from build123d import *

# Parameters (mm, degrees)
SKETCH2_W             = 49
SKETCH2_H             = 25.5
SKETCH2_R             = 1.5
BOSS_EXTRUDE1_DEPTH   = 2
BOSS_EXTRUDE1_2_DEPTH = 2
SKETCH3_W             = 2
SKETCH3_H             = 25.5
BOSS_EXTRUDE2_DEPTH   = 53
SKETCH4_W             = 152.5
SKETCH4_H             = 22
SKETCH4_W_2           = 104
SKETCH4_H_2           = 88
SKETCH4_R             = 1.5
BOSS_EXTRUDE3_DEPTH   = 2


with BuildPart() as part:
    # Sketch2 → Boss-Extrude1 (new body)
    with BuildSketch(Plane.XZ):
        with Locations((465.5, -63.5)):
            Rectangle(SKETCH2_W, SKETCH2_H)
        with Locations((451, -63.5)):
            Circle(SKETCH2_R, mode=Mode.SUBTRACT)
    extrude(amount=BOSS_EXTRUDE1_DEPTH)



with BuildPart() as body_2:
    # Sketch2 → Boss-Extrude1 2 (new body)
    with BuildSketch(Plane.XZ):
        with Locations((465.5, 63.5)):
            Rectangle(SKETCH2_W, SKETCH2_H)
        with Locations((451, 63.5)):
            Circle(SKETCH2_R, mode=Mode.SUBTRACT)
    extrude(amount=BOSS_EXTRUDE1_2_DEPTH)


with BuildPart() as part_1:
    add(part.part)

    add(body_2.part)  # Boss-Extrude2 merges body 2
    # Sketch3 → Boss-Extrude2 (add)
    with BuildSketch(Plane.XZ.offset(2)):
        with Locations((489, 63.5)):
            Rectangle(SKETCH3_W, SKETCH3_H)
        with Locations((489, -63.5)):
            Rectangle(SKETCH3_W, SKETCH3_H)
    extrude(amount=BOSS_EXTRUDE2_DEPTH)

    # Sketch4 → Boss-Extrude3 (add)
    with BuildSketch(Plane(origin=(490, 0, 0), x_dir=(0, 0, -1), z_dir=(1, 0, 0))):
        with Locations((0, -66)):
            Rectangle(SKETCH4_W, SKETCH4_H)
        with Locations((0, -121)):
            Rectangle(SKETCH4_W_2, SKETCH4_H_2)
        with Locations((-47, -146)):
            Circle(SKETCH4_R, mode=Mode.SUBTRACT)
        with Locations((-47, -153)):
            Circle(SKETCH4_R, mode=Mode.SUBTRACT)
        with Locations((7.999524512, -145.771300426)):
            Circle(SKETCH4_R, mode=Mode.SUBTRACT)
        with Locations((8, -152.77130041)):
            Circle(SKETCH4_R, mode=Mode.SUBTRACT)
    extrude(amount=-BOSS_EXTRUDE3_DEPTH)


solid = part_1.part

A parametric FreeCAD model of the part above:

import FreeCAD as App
import Part
import Sketcher

V = App.Vector
Q = App.Units.Quantity


def add_polygon(sketch, points):
    """Adds a closed chain of lines whose ends are joined by coincident constraints."""
    first, n = sketch.GeometryCount, len(points)
    for a, b in zip(points, points[1:] + points[:1]):
        sketch.addGeometry(Part.LineSegment(App.Vector(*a, 0), App.Vector(*b, 0)), False)
    for i in range(n):
        sketch.addConstraint(Sketcher.Constraint("Coincident", first + i, 2, first + (i + 1) % n, 1))

doc = App.newDocument("Part")
body = doc.addObject("PartDesign::Body", "Body")

sketch1 = doc.addObject("Sketcher::SketchObject", "Sketch")
body.addObject(sketch1)
sketch1.AttachmentSupport = (doc.XZ_Plane, [""])
sketch1.MapMode = "FlatFace"
add_polygon(sketch1, [(441, -50.75), (441, -76.25), (490, -76.25), (490, -50.75)])
sketch1.addGeometry(Part.Circle(V(451, -63.5, 0), V(0, 0, 1), 1.5), False)
sketch1.addConstraint(Sketcher.Constraint("Vertical", 0))
sketch1.addConstraint(Sketcher.Constraint("Horizontal", 1))
sketch1.addConstraint(Sketcher.Constraint("Vertical", 2))
sketch1.addConstraint(Sketcher.Constraint("Horizontal", 3))
sketch1.addConstraint(Sketcher.Constraint("Diameter", 4, Q("3 mm")))
sketch1.addConstraint(Sketcher.Constraint("DistanceX", 1, 1, 1, 2, Q("49 mm")))
sketch1.addConstraint(Sketcher.Constraint("DistanceY", 0, 2, 0, 1, Q("25.5 mm")))
sketch1.addConstraint(Sketcher.Constraint("DistanceX", -1, 1, 4, 3, Q("451 mm")))
sketch1.addConstraint(Sketcher.Constraint("DistanceX", -1, 1, 0, 2, Q("441 mm")))
sketch1.addConstraint(Sketcher.Constraint("DistanceY", 4, 3, -1, 1, Q("63.5 mm")))
sketch1.addConstraint(Sketcher.Constraint("DistanceY", 0, 2, -1, 1, Q("76.25 mm")))
pad1 = doc.addObject("PartDesign::Pad", "Pad")
body.addObject(pad1)
pad1.Profile = sketch1
pad1.Length = 2
body2 = doc.addObject("PartDesign::Body", "Body001")

sketch2 = doc.addObject("Sketcher::SketchObject", "Sketch001")
body2.addObject(sketch2)
sketch2.AttachmentSupport = (doc.getObject("XZ_Plane001"), [""])
sketch2.MapMode = "FlatFace"
add_polygon(sketch2, [(441, 76.25), (441, 50.75), (490, 50.75), (490, 76.25)])
sketch2.addGeometry(Part.Circle(V(451, 63.5, 0), V(0, 0, 1), 1.5), False)
sketch2.addConstraint(Sketcher.Constraint("Vertical", 0))
sketch2.addConstraint(Sketcher.Constraint("Horizontal", 1))
sketch2.addConstraint(Sketcher.Constraint("Vertical", 2))
sketch2.addConstraint(Sketcher.Constraint("Horizontal", 3))
sketch2.addConstraint(Sketcher.Constraint("Diameter", 4, Q("3 mm")))
sketch2.addConstraint(Sketcher.Constraint("DistanceX", 1, 1, 1, 2, Q("49 mm")))
sketch2.addConstraint(Sketcher.Constraint("DistanceY", 0, 2, 0, 1, Q("25.5 mm")))
sketch2.addConstraint(Sketcher.Constraint("DistanceX", -1, 1, 4, 3, Q("451 mm")))
sketch2.addConstraint(Sketcher.Constraint("DistanceX", -1, 1, 0, 2, Q("441 mm")))
sketch2.addConstraint(Sketcher.Constraint("DistanceY", -1, 1, 4, 3, Q("63.5 mm")))
sketch2.addConstraint(Sketcher.Constraint("DistanceY", -1, 1, 0, 2, Q("50.75 mm")))
pad2 = doc.addObject("PartDesign::Pad", "Pad001")
body2.addObject(pad2)
pad2.Profile = sketch2
pad2.Length = 2
body.AllowCompound = True
doc.recompute()

boolean = doc.addObject("PartDesign::Boolean", "Boolean")
body.addObject(boolean)
boolean.Type = "Fuse"
boolean.addObjects([body2])

sketch3 = doc.addObject("Sketcher::SketchObject", "Sketch002")
body.addObject(sketch3)
sketch3.AttachmentSupport = (doc.XZ_Plane, [""])
sketch3.MapMode = "FlatFace"
sketch3.AttachmentOffset = App.Placement(V(0, 0, 2), App.Rotation())
add_polygon(sketch3, [(488, 76.25), (488, 50.75), (490, 50.75), (490, 76.25)])
add_polygon(sketch3, [(488, -50.75), (488, -76.25), (490, -76.25), (490, -50.75)])
sketch3.addConstraint(Sketcher.Constraint("Vertical", 0))
sketch3.addConstraint(Sketcher.Constraint("Horizontal", 1))
sketch3.addConstraint(Sketcher.Constraint("Vertical", 2))
sketch3.addConstraint(Sketcher.Constraint("Horizontal", 3))
sketch3.addConstraint(Sketcher.Constraint("Vertical", 4))
sketch3.addConstraint(Sketcher.Constraint("Horizontal", 5))
sketch3.addConstraint(Sketcher.Constraint("Vertical", 6))
sketch3.addConstraint(Sketcher.Constraint("Horizontal", 7))
sketch3.addConstraint(Sketcher.Constraint("Symmetric", 3, 2, 4, 2, -1))
sketch3.addConstraint(Sketcher.Constraint("Symmetric", 1, 2, 6, 2, -1))
sketch3.addConstraint(Sketcher.Constraint("DistanceX", 1, 1, 1, 2, Q("2 mm")))
sketch3.addConstraint(Sketcher.Constraint("DistanceY", 0, 2, 0, 1, Q("25.5 mm")))
sketch3.addConstraint(Sketcher.Constraint("DistanceX", -1, 1, 0, 2, Q("488 mm")))
sketch3.addConstraint(Sketcher.Constraint("DistanceY", 4, 2, 0, 2, Q("127 mm")))
pad3 = doc.addObject("PartDesign::Pad", "Pad002")
body.addObject(pad3)
pad3.Profile = sketch3
pad3.Length = 53

sketch4 = doc.addObject("Sketcher::SketchObject", "Sketch003")
body.addObject(sketch4)
sketch4.AttachmentSupport = (doc.YZ_Plane, [""])
sketch4.MapMode = "FlatFace"
sketch4.AttachmentOffset = App.Placement(V(0, 0, 490), App.Rotation())
add_polygon(sketch4, [(-55, 76.25), (-77, 76.25), (-77, 52), (-165, 52), (-165, -52), (-77, -52), (-77, -76.25), (-55, -76.25)])
sketch4.addGeometry(Part.Circle(V(-153, 47, 0), V(0, 0, 1), 1.5), False)
sketch4.addGeometry(Part.Circle(V(-152.7713, -8, 0), V(0, 0, 1), 1.5), False)
sketch4.addGeometry(Part.Circle(V(-146, 47, 0), V(0, 0, 1), 1.5), False)
sketch4.addGeometry(Part.Circle(V(-145.7713, -7.999525, 0), V(0, 0, 1), 1.5), False)
sketch4.addConstraint(Sketcher.Constraint("Horizontal", 0))
sketch4.addConstraint(Sketcher.Constraint("Vertical", 1))
sketch4.addConstraint(Sketcher.Constraint("Horizontal", 2))
sketch4.addConstraint(Sketcher.Constraint("Vertical", 3))
sketch4.addConstraint(Sketcher.Constraint("Horizontal", 4))
sketch4.addConstraint(Sketcher.Constraint("Vertical", 5))
sketch4.addConstraint(Sketcher.Constraint("Horizontal", 6))
sketch4.addConstraint(Sketcher.Constraint("Vertical", 7))
sketch4.addConstraint(Sketcher.Constraint("Equal", 8, 9))
sketch4.addConstraint(Sketcher.Constraint("Equal", 9, 10))
sketch4.addConstraint(Sketcher.Constraint("Equal", 10, 11))
sketch4.addConstraint(Sketcher.Constraint("Symmetric", 1, 2, 4, 2, -1))
sketch4.addConstraint(Sketcher.Constraint("Horizontal", 8, 3, 10, 3))
sketch4.addConstraint(Sketcher.Constraint("Equal", 1, 5))
sketch4.addConstraint(Sketcher.Constraint("Diameter", 8, Q("3 mm")))
sketch4.addConstraint(Sketcher.Constraint("DistanceX", 0, 2, 0, 1, Q("22 mm")))
sketch4.addConstraint(Sketcher.Constraint("DistanceX", 2, 2, 2, 1, Q("88 mm")))
sketch4.addConstraint(Sketcher.Constraint("DistanceY", 3, 2, 3, 1, Q("104 mm")))
sketch4.addConstraint(Sketcher.Constraint("DistanceY", 7, 1, 7, 2, Q("152.5 mm")))
sketch4.addConstraint(Sketcher.Constraint("DistanceX", 8, 3, -1, 1, Q("153 mm")))
sketch4.addConstraint(Sketcher.Constraint("DistanceY", -1, 1, 8, 3, Q("47 mm")))
sketch4.addConstraint(Sketcher.Constraint("DistanceY", 9, 3, -1, 1, Q("8 mm")))
sketch4.addConstraint(Sketcher.Constraint("DistanceX", 10, 3, -1, 1, Q("146 mm")))
sketch4.addConstraint(Sketcher.Constraint("DistanceX", 0, 2, -1, 1, Q("77 mm")))
sketch4.addConstraint(Sketcher.Constraint("DistanceX", 9, 3, 11, 3, Q("7 mm")))
sketch4.addConstraint(Sketcher.Constraint("DistanceX", 9, 3, -1, 1, Q("152.7713 mm")))
sketch4.addConstraint(Sketcher.Constraint("DistanceY", 11, 3, -1, 1, Q("7.999525 mm")))
pad4 = doc.addObject("PartDesign::Pad", "Pad003")
body.addObject(pad4)
pad4.Profile = sketch4
pad4.Length = 2
pad4.Reversed = True

doc.recompute()
